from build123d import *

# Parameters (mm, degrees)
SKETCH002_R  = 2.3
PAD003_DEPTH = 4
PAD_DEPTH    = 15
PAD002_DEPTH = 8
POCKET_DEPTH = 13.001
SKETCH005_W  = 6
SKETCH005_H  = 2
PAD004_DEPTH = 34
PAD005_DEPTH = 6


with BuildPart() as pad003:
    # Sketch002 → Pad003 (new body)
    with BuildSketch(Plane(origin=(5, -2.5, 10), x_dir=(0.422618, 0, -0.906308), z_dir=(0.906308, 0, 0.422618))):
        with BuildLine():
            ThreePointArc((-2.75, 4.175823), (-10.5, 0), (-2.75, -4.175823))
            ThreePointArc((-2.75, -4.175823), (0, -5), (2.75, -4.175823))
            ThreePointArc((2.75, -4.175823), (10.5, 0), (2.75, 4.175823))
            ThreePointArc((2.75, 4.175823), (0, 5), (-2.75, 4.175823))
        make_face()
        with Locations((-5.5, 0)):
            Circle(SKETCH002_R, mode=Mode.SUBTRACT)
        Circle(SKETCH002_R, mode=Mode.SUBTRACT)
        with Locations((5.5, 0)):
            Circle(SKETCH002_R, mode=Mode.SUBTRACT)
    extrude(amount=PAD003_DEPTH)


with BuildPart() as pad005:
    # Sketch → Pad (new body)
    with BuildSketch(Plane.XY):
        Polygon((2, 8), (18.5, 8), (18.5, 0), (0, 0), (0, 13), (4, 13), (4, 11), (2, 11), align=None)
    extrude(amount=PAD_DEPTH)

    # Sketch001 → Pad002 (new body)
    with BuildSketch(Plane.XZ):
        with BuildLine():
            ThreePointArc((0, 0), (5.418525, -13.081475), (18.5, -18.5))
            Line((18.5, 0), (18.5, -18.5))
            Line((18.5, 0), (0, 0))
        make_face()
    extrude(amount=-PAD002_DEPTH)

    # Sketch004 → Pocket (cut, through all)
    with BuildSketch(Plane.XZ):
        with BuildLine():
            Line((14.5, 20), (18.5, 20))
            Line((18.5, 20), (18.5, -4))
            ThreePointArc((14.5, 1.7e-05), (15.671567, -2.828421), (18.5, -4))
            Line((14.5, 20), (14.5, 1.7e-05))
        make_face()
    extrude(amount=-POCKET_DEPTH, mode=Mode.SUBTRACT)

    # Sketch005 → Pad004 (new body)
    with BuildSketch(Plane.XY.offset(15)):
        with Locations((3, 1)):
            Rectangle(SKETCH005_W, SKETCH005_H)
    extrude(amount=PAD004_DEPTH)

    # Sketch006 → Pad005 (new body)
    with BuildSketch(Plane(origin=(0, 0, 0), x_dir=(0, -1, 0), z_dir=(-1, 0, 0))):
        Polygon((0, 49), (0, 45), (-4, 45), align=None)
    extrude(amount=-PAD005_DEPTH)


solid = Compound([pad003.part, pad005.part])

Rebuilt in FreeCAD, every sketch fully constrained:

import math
import FreeCAD as App
import Part
import Sketcher
from FreeCAD import Vector


def add_polygon(sketch, points):
    """Adds a closed chain of lines whose ends are joined by coincident constraints."""
    first, n = sketch.GeometryCount, len(points)
    for a, b in zip(points, points[1:] + points[:1]):
        sketch.addGeometry(Part.LineSegment(App.Vector(*a, 0), App.Vector(*b, 0)), False)
    for i in range(n):
        sketch.addConstraint(Sketcher.Constraint("Coincident", first + i, 2, first + (i + 1) % n, 1))

doc = App.newDocument("Part")
body = doc.addObject("PartDesign::Body", "Body")

# Sketch on an angled plane
sketch1 = body.newObject("Sketcher::SketchObject", "Sketch")
sketch1.Placement = App.Placement(Vector(5, -2.5, 10), App.Rotation(Vector(0.422617965, 0, -0.906307925), Vector(0, 0.999999999, 0), Vector(0.906307925, 0, 0.422617965), "ZXY"))
sketch1.addGeometry(Part.ArcOfCircle(Part.Circle(Vector(-5.5, 0, 0), Vector(0, 0, 1), 5), math.radians(57), math.radians(303)), False)
sketch1.addGeometry(Part.ArcOfCircle(Part.Circle(Vector(0, 0, 0), Vector(0, 0, 1), 5), math.radians(-123), math.radians(-57)), False)
sketch1.addGeometry(Part.ArcOfCircle(Part.Circle(Vector(5.5, 0, 0), Vector(0, 0, 1), 5), math.radians(-123), math.radians(123)), False)
sketch1.addGeometry(Part.ArcOfCircle(Part.Circle(Vector(0, 0, 0), Vector(0, 0, 1), 5), math.radians(57), math.radians(123)), False)
sketch1.addGeometry(Part.Circle(Vector(-5.5, 0, 0), Vector(0, 0, 1), 2.3), False)
sketch1.addGeometry(Part.Circle(Vector(0, 0, 0), Vector(0, 0, 1), 2.3), False)
sketch1.addGeometry(Part.Circle(Vector(5.5, 0, 0), Vector(0, 0, 1), 2.3), False)
sketch1.addConstraint(Sketcher.Constraint("Coincident", 0, 2, 1, 1))
sketch1.addConstraint(Sketcher.Constraint("Coincident", 1, 2, 2, 1))
sketch1.addConstraint(Sketcher.Constraint("Coincident", 2, 2, 3, 1))
sketch1.addConstraint(Sketcher.Constraint("Coincident", 3, 2, 0, 1))
sketch1.addConstraint(Sketcher.Constraint("Coincident", 1, 3, -1, 1))
sketch1.addConstraint(Sketcher.Constraint("Coincident", 3, 3, -1, 1))
sketch1.addConstraint(Sketcher.Constraint("Coincident", 5, 3, -1, 1))
sketch1.addConstraint(Sketcher.Constraint("Coincident", 4, 3, 0, 3))
sketch1.addConstraint(Sketcher.Constraint("Coincident", 6, 3, 2, 3))
sketch1.addConstraint(Sketcher.Constraint("Equal", 0, 1))
sketch1.addConstraint(Sketcher.Constraint("Equal", 1, 2))
sketch1.addConstraint(Sketcher.Constraint("Equal", 2, 3))
sketch1.addConstraint(Sketcher.Constraint("Equal", 4, 5))
sketch1.addConstraint(Sketcher.Constraint("Equal", 5, 6))
sketch1.addConstraint(Sketcher.Constraint("Symmetric", 0, 3, 2, 3, -1, 1))
sketch1.addConstraint(Sketcher.Constraint("PointOnObject", 0, 3, -1))
sketch1.addConstraint(Sketcher.Constraint("Radius", 0, 5.0))
sketch1.addConstraint(Sketcher.Constraint("Diameter", 4, 4.6))
sketch1.addConstraint(Sketcher.Constraint("DistanceX", 0, 3, 2, 3, 11.0))
pad1 = body.newObject("PartDesign::Pad", "Pad")
pad1.Profile = sketch1
pad1.Length = 4
body2 = doc.addObject("PartDesign::Body", "Body001")

# Sketch on XY plane
sketch2 = body2.newObject("Sketcher::SketchObject", "Sketch001")
sketch2.AttachmentSupport = (doc.getObject("XY_Plane001"), [""])
sketch2.MapMode = "FlatFace"
add_polygon(sketch2, [(18.5, 8), (2, 8), (2, 11), (4, 11), (4, 13), (0, 13), (0, 0), (18.5, 0)])  # lines 0-7
sketch2.addConstraint(Sketcher.Constraint("Horizontal", 0))
sketch2.addConstraint(Sketcher.Constraint("Vertical", 1))
sketch2.addConstraint(Sketcher.Constraint("Horizontal", 2))
sketch2.addConstraint(Sketcher.Constraint("Vertical", 3))
sketch2.addConstraint(Sketcher.Constraint("Horizontal", 4))
sketch2.addConstraint(Sketcher.Constraint("Vertical", 5))
sketch2.addConstraint(Sketcher.Constraint("Horizontal", 6))
sketch2.addConstraint(Sketcher.Constraint("Vertical", 7))
sketch2.addConstraint(Sketcher.Constraint("Coincident", 5, 2, -1, 1))
sketch2.addConstraint(Sketcher.Constraint("Equal", 2, 3))
sketch2.addConstraint(Sketcher.Constraint("DistanceX", 2, 1, 2, 2, 2.0))
sketch2.addConstraint(Sketcher.Constraint("DistanceX", 4, 2, 4, 1, 4.0))
sketch2.addConstraint(Sketcher.Constraint("DistanceY", 1, 1, 1, 2, 3.0))
sketch2.addConstraint(Sketcher.Constraint("DistanceY", 5, 2, 5, 1, 13.0))
sketch2.addConstraint(Sketcher.Constraint("DistanceX", 0, 2, 0, 1, 16.5))
pad2 = body2.newObject("PartDesign::Pad", "Pad001")
pad2.Profile = sketch2
pad2.Length = 15

# Sketch on XZ plane
sketch3 = body2.newObject("Sketcher::SketchObject", "Sketch002")
sketch3.AttachmentSupport = (doc.getObject("XZ_Plane001"), [""])
sketch3.MapMode = "FlatFace"
sketch3.addGeometry(Part.ArcOfCircle(Part.Circle(Vector(19, 0, 0), Vector(0, 0, 1), 19), math.radians(-180), math.radians(-90)), False)
sketch3.addGeometry(Part.LineSegment(Vector(18, -18, 0), Vector(18, 0, 0)), False)
sketch3.addGeometry(Part.LineSegment(Vector(18, 0, 0), Vector(0, 0, 0)), False)
sketch3.addConstraint(Sketcher.Constraint("Coincident", 0, 2, 1, 1))
sketch3.addConstraint(Sketcher.Constraint("Coincident", 1, 2, 2, 1))
sketch3.addConstraint(Sketcher.Constraint("Coincident", 2, 2, 0, 1))
sketch3.addConstraint(Sketcher.Constraint("Vertical", 1))
sketch3.addConstraint(Sketcher.Constraint("Horizontal", 2))
sketch3.addConstraint(Sketcher.Constraint("Coincident", 2, 2, -1, 1))
sketch3.addConstraint(Sketcher.Constraint("Coincident", 1, 2, 0, 3))
sketch3.addConstraint(Sketcher.Constraint("Radius", 0, 18.500002))
pad3 = body2.newObject("PartDesign::Pad", "Pad002")
pad3.Profile = sketch3
pad3.Length = 8
pad3.Reversed = True

# Sketch on XZ plane
sketch4 = body2.newObject("Sketcher::SketchObject", "Sketch003")
sketch4.AttachmentSupport = (doc.getObject("XZ_Plane001"), [""])
sketch4.MapMode = "FlatFace"
sketch4.addGeometry(Part.LineSegment(Vector(18.5, 20, 0), Vector(14.5, 20, 0)), False)
sketch4.addGeometry(Part.LineSegment(Vector(14.5, 20, 0), Vector(14.5, 0, 0)), False)
sketch4.addGeometry(Part.ArcOfCircle(Part.Circle(Vector(18.5, 0, 0), Vector(0, 0, 1), 4), math.radians(180), math.radians(270)), False)
sketch4.addGeometry(Part.LineSegment(Vector(18.5, -4, 0), Vector(18.5, 20, 0)), False)
sketch4.addConstraint(Sketcher.Constraint("Coincident", 0, 2, 1, 1))
sketch4.addConstraint(Sketcher.Constraint("Coincident", 1, 2, 2, 1))
sketch4.addConstraint(Sketcher.Constraint("Coincident", 2, 2, 3, 1))
sketch4.addConstraint(Sketcher.Constraint("Coincident", 3, 2, 0, 1))
sketch4.addConstraint(Sketcher.Constraint("Horizontal", 0))
sketch4.addConstraint(Sketcher.Constraint("Vertical", 1))
sketch4.addConstraint(Sketcher.Constraint("Vertical", 3))
sketch4.addConstraint(Sketcher.Constraint("PointOnObject", 2, 3, -1))
sketch4.addConstraint(Sketcher.Constraint("Radius", 2, 4.0))
sketch4.addConstraint(Sketcher.Constraint("DistanceX", 0, 2, 0, 1, 4.0))
sketch4.addConstraint(Sketcher.Constraint("DistanceY", 3, 1, 3, 2, 24.0))
sketch4.addConstraint(Sketcher.Constraint("DistanceX", -1, 1, 2, 3, 18.5))
sketch4.addConstraint(Sketcher.Constraint("DistanceY", 1, 2, 1, 1, 19.999983))
pocket1 = body2.newObject("PartDesign::Pocket", "Pocket")
pocket1.Profile = sketch4
pocket1.Type = "ThroughAll"

# Sketch on XY plane
sketch5 = body2.newObject("Sketcher::SketchObject", "Sketch004")
sketch5.AttachmentSupport = (doc.getObject("XY_Plane001"), [""])
sketch5.MapMode = "FlatFace"
sketch5.AttachmentOffset = App.Placement(Vector(0, 0, 15), App.Rotation())
add_polygon(sketch5, [(0, 2), (0, 0), (6, 0), (6, 2)])  # lines 0-3
sketch5.addConstraint(Sketcher.Constraint("Vertical", 0))
sketch5.addConstraint(Sketcher.Constraint("Horizontal", 1))
sketch5.addConstraint(Sketcher.Constraint("Vertical", 2))
sketch5.addConstraint(Sketcher.Constraint("Horizontal", 3))
sketch5.addConstraint(Sketcher.Constraint("Coincident", 0, 2, -1, 1))
sketch5.addConstraint(Sketcher.Constraint("DistanceX", 1, 1, 1, 2, 6.0))
sketch5.addConstraint(Sketcher.Constraint("DistanceY", 0, 2, 0, 1, 2.0))
pad4 = body2.newObject("PartDesign::Pad", "Pad003")
pad4.Profile = sketch5
pad4.Length = 34

# Sketch on YZ plane
sketch6 = body2.newObject("Sketcher::SketchObject", "Sketch005")
sketch6.AttachmentSupport = (doc.getObject("YZ_Plane001"), [""])
sketch6.MapMode = "FlatFace"
add_polygon(sketch6, [(0, 45), (0, 49), (4, 45)])  # lines 0-2
sketch6.addConstraint(Sketcher.Constraint("Vertical", 0))
sketch6.addConstraint(Sketcher.Constraint("Horizontal", 2))
sketch6.addConstraint(Sketcher.Constraint("PointOnObject", 0, 2, -2))
sketch6.addConstraint(Sketcher.Constraint("Equal", 2, 0))
sketch6.addConstraint(Sketcher.Constraint("DistanceX", 2, 2, 2, 1, 4.0))
sketch6.addConstraint(Sketcher.Constraint("DistanceY", -1, 1, 0, 2, 49.0))
pad5 = body2.newObject("PartDesign::Pad", "Pad004")
pad5.Profile = sketch6
pad5.Length = 6

doc.recompute()
